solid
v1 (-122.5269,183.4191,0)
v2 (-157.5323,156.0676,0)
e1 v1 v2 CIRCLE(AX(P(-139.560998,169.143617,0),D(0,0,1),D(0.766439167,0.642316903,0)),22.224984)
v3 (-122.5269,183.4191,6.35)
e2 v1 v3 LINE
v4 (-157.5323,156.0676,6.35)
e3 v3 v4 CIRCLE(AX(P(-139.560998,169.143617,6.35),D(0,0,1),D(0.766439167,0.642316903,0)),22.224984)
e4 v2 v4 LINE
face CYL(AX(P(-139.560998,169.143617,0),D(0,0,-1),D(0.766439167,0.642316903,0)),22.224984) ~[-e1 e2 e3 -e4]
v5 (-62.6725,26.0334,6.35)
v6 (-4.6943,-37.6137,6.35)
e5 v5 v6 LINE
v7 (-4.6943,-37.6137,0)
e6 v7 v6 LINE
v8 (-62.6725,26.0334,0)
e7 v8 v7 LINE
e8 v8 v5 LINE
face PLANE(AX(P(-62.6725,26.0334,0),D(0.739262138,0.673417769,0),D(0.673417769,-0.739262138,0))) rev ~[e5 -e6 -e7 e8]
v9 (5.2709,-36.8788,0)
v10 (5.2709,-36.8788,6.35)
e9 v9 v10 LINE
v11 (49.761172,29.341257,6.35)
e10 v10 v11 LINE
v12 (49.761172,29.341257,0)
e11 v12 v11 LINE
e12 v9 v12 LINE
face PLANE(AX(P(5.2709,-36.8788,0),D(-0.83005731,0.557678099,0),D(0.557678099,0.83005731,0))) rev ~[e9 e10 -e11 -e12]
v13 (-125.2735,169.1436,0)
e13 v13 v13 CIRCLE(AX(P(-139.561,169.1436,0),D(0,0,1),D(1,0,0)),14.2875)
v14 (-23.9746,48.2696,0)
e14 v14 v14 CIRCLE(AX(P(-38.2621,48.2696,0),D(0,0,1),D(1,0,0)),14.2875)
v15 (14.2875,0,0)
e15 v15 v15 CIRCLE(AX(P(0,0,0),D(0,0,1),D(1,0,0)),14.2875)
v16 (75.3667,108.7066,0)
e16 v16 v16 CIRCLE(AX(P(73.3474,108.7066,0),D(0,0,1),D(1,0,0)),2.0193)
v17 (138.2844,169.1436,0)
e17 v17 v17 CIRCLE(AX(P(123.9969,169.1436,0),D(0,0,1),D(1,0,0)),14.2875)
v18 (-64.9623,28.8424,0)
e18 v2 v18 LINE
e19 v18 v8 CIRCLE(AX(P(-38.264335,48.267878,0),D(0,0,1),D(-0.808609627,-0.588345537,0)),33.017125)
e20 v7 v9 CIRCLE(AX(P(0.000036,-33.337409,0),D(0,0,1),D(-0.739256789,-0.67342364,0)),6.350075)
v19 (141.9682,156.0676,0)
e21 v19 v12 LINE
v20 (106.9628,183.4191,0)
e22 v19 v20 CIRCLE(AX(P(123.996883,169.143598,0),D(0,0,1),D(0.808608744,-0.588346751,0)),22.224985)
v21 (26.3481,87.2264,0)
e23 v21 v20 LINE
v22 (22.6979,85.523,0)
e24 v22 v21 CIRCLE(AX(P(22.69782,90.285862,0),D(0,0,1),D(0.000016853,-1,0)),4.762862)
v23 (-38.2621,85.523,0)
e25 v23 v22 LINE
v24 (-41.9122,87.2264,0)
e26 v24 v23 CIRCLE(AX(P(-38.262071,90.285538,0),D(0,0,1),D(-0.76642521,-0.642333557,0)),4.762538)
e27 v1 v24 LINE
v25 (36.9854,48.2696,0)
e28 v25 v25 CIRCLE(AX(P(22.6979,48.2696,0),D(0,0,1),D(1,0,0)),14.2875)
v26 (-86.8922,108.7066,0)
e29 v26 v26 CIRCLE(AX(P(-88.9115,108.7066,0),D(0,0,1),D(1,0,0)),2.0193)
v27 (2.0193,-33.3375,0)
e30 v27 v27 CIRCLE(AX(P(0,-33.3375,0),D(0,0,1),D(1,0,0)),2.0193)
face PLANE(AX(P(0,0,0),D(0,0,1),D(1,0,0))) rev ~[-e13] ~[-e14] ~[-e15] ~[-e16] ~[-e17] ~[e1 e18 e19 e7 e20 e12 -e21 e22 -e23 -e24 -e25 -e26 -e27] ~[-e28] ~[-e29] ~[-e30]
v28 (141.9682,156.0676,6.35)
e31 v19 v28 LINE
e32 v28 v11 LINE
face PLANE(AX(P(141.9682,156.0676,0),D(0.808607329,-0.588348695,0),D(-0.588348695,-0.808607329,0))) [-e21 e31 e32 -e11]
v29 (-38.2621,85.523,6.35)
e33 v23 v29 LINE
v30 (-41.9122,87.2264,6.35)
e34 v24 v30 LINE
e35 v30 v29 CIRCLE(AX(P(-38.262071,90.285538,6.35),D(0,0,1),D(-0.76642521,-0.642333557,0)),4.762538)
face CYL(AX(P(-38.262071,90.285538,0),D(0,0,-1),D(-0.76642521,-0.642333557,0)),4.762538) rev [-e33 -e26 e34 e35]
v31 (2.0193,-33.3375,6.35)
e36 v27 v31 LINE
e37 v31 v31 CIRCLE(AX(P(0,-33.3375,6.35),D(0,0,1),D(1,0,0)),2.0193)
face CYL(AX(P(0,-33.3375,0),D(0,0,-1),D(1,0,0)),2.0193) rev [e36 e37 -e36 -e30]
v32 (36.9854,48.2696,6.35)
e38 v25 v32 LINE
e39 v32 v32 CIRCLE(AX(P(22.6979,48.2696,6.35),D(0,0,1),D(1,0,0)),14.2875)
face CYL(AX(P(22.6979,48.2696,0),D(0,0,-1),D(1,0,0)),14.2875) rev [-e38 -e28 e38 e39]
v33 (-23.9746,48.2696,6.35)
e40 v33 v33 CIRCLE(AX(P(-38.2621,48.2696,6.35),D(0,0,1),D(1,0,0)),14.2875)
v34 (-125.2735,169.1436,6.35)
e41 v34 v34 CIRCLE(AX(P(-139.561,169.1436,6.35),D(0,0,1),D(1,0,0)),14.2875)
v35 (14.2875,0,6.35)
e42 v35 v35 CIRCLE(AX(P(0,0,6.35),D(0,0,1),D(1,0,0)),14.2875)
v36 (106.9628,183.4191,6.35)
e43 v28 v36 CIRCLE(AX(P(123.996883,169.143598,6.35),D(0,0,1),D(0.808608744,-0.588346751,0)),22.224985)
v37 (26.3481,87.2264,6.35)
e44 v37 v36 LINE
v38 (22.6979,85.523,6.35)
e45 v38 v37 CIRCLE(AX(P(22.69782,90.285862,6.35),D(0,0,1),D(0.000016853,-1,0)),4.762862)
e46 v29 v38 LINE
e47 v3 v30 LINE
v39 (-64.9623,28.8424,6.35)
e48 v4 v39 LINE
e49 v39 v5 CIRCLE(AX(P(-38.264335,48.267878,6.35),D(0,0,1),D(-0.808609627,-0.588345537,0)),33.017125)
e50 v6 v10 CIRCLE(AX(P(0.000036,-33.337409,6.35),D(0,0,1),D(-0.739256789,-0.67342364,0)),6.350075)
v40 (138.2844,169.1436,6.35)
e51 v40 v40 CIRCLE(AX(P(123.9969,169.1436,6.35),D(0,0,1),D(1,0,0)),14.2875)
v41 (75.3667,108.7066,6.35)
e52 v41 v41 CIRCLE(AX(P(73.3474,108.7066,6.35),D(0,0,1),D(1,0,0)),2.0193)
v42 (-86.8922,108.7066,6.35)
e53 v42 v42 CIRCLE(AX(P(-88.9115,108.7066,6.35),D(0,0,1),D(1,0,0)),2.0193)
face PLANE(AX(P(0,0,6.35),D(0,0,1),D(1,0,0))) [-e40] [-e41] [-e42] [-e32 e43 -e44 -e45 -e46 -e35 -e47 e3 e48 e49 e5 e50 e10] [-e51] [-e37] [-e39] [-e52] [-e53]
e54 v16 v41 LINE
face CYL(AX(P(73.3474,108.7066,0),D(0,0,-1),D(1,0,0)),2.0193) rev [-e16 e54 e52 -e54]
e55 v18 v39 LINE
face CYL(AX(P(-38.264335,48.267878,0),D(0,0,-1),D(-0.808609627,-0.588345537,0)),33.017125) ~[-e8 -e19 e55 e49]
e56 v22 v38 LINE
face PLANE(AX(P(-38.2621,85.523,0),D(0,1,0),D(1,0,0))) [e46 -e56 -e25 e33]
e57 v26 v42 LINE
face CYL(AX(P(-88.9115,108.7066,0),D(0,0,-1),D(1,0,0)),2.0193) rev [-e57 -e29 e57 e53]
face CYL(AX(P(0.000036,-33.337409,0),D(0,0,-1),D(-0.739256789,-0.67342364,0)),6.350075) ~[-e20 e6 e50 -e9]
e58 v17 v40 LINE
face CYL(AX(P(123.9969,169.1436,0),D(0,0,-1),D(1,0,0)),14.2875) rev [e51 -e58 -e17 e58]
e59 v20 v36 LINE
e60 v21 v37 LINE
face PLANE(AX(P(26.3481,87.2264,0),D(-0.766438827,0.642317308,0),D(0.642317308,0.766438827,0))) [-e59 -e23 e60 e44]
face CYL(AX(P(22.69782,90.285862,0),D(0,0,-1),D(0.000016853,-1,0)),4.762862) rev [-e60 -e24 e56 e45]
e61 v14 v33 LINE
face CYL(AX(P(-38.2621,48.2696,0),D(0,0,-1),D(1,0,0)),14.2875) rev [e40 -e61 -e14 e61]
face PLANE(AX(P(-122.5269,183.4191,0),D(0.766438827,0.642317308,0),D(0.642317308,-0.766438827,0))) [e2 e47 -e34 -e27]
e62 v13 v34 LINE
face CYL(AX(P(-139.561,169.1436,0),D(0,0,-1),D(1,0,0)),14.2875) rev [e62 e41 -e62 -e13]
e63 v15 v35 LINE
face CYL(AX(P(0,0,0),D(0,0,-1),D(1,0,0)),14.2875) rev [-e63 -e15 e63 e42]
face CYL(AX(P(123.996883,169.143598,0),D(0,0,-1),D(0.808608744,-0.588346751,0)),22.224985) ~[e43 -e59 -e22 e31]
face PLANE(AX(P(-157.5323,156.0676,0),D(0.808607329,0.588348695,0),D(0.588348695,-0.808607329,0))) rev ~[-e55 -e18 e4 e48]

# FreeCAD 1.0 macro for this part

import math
import FreeCAD as App
import Part
import Sketcher

V = App.Vector
Q = App.Units.Quantity

doc = App.newDocument("Part")
params = doc.addObject("Spreadsheet::Sheet", "Params")
for row, (alias, value) in enumerate([
    ("sketch1_radius", "0.25 in"),
    ("sketch1_diameter", "1.125 in"),
    ("sketch1_diameter2", "0.159 in"),
    ("sketch1_width", "2.4 in"),
    ("sketch1_radius2", "0.875 in"),
    ("pad1_length", "0.25 in"),
], start=1):
    params.set(f"A{row}", alias)
    params.set(f"B{row}", "=" + value)
    params.setAlias(f"B{row}", alias)

body = doc.addObject("PartDesign::Body", "Body")

sketch1 = body.newObject("Sketcher::SketchObject", "Sketch")
sketch1.AttachmentSupport = (doc.getObject("XY_Plane"), [""])
sketch1.MapMode = "FlatFace"
sketch1.addGeometry(Part.LineSegment(V(-41.9, 87.2, 0), V(-122.5, 183.4, 0)), False)
sketch1.addGeometry(Part.ArcOfCircle(Part.Circle(V(-139.6, 169.1, 0), V(0, 0, 1), 22.2), math.radians(40), math.radians(216)), False)
sketch1.addGeometry(Part.LineSegment(V(-157.5, 156.1, 0), V(-65, 28.8, 0)), False)
sketch1.addGeometry(Part.ArcOfCircle(Part.Circle(V(-38.3, 48.3, 0), V(0, 0, 1), 33), math.radians(-143.96), math.radians(-137.67)), False)
sketch1.addGeometry(Part.LineSegment(V(-62.7, 26, 0), V(-4.7, -37.6, 0)), False)
sketch1.addGeometry(Part.ArcOfCircle(Part.Circle(V(0, -33.3, 0), V(0, 0, 1), 6.3), math.radians(-138), math.radians(-34)), False)
sketch1.addGeometry(Part.LineSegment(V(5.3, -36.9, 0), V(49.8, 29.3, 0)), False)
sketch1.addGeometry(Part.LineSegment(V(49.8, 29.3, 0), V(142, 156.1, 0)), False)
sketch1.addGeometry(Part.ArcOfCircle(Part.Circle(V(124, 169.1, 0), V(0, 0, 1), 22.2), math.radians(-36), math.radians(140)), False)
sketch1.addGeometry(Part.LineSegment(V(107, 183.4, 0), V(26.3, 87.2, 0)), False)
sketch1.addGeometry(Part.ArcOfCircle(Part.Circle(V(22.7, 90.3, 0), V(0, 0, 1), 4.8), math.radians(-90), math.radians(-40)), False)
sketch1.addGeometry(Part.LineSegment(V(22.7, 85.5, 0), V(-38.3, 85.5, 0)), False)
sketch1.addGeometry(Part.ArcOfCircle(Part.Circle(V(-38.3, 90.3, 0), V(0, 0, 1), 4.8), math.radians(-140), math.radians(-90)), False)
sketch1.addGeometry(Part.Circle(V(-38.3, 48.3, 0), V(0, 0, 1), 14.3), False)
sketch1.addGeometry(Part.Circle(V(0, -33.3, 0), V(0, 0, 1), 2), False)
sketch1.addGeometry(Part.Circle(V(0, 0, 0), V(0, 0, 1), 14.3), False)
sketch1.addGeometry(Part.Circle(V(-139.6, 169.1, 0), V(0, 0, 1), 14.3), False)
sketch1.addGeometry(Part.Circle(V(73.3, 108.7, 0), V(0, 0, 1), 2), False)
sketch1.addGeometry(Part.Circle(V(124, 169.1, 0), V(0, 0, 1), 14.3), False)
sketch1.addGeometry(Part.Circle(V(22.7, 48.3, 0), V(0, 0, 1), 14.3), False)
sketch1.addGeometry(Part.Circle(V(-88.9, 108.7, 0), V(0, 0, 1), 2), False)
sketch1.addConstraint(Sketcher.Constraint("Tangent", 0, 2, 1, 1))
sketch1.addConstraint(Sketcher.Constraint("Tangent", 1, 2, 2, 1))
sketch1.addConstraint(Sketcher.Constraint("Tangent", 2, 2, 3, 1))
sketch1.addConstraint(Sketcher.Constraint("Tangent", 3, 2, 4, 1))
sketch1.addConstraint(Sketcher.Constraint("Tangent", 4, 2, 5, 1))
sketch1.addConstraint(Sketcher.Constraint("Tangent", 5, 2, 6, 1))
sketch1.addConstraint(Sketcher.Constraint("Coincident", 6, 2, 7, 1))
sketch1.addConstraint(Sketcher.Constraint("Tangent", 7, 2, 8, 1))
sketch1.addConstraint(Sketcher.Constraint("Tangent", 8, 2, 9, 1))
sketch1.addConstraint(Sketcher.Constraint("Tangent", 9, 2, 10, 2))
sketch1.addConstraint(Sketcher.Constraint("Tangent", 10, 1, 11, 1))
sketch1.addConstraint(Sketcher.Constraint("Tangent", 11, 2, 12, 2))
sketch1.addConstraint(Sketcher.Constraint("Tangent", 12, 1, 0, 1))
sketch1.addConstraint(Sketcher.Constraint("Horizontal", 11))
sketch1.addConstraint(Sketcher.Constraint("Coincident", 15, 3, -1, 1))
sketch1.addConstraint(Sketcher.Constraint("Coincident", 14, 3, 5, 3))
sketch1.addConstraint(Sketcher.Constraint("Coincident", 16, 3, 1, 3))
sketch1.addConstraint(Sketcher.Constraint("Coincident", 18, 3, 8, 3))
sketch1.addConstraint(Sketcher.Constraint("Equal", 1, 8))
sketch1.addConstraint(Sketcher.Constraint("Equal", 10, 12))
sketch1.addConstraint(Sketcher.Constraint("Equal", 13, 15))
sketch1.addConstraint(Sketcher.Constraint("Equal", 15, 16))
sketch1.addConstraint(Sketcher.Constraint("Equal", 14, 17))
sketch1.addConstraint(Sketcher.Constraint("Equal", 16, 18))
sketch1.addConstraint(Sketcher.Constraint("Equal", 18, 19))
sketch1.addConstraint(Sketcher.Constraint("Equal", 17, 20))
sketch1.addConstraint(Sketcher.Constraint("PointOnObject", 5, 3, -2))
sketch1.addConstraint(Sketcher.Constraint("Horizontal", 1, 3, 8, 3))
sketch1.addConstraint(Sketcher.Constraint("Horizontal", 13, 3, 19, 3))
sketch1.addConstraint(Sketcher.Constraint("Horizontal", 17, 3, 20, 3))
sketch1.addConstraint(Sketcher.Constraint("Horizontal", 1, 2, 7, 2))
sketch1.addConstraint(Sketcher.Constraint("Horizontal", 0, 2, 8, 2))
sketch1.addConstraint(Sketcher.Constraint("Vertical", 12, 3, 13, 3))
sketch1.addConstraint(Sketcher.Constraint("Vertical", 10, 3, 19, 3))
sketch1.addConstraint(Sketcher.Constraint("Radius", 5, Q("0.25 in")))
sketch1.addConstraint(Sketcher.Constraint("Diameter", 13, Q("1.125 in")))
sketch1.addConstraint(Sketcher.Constraint("Diameter", 14, Q("0.159 in")))
sketch1.addConstraint(Sketcher.Constraint("DistanceX", 11, 2, 11, 1, Q("2.4 in")))
sketch1.addConstraint(Sketcher.Constraint("Radius", 1, Q("0.875 in")))
sketch1.addConstraint(Sketcher.Constraint("Radius", 10, Q("0.1875 in")))
sketch1.addConstraint(Sketcher.Constraint("Angle", 2, Q("-53.96 deg")))
sketch1.addConstraint(Sketcher.Constraint("Radius", 3, 33.0171))
sketch1.addConstraint(Sketcher.Constraint("DistanceY", 5, 3, -1, 1, Q("1.3125 in")))
sketch1.addConstraint(Sketcher.Constraint("DistanceY", -1, 1, 1, 3, Q("6.6592 in")))
sketch1.addConstraint(Sketcher.Constraint("DistanceY", -1, 1, 3, 3, Q("1.9003 in")))
sketch1.addConstraint(Sketcher.Constraint("DistanceX", -1, 1, 17, 3, Q("2.8877 in")))
sketch1.addConstraint(Sketcher.Constraint("DistanceX", 0, 2, -1, 1, Q("4.8239 in")))
sketch1.addConstraint(Sketcher.Constraint("DistanceX", -1, 1, 6, 2, Q("1.9591 in")))
sketch1.addConstraint(Sketcher.Constraint("DistanceX", -1, 1, 7, 2, Q("5.5893 in")))
sketch1.addConstraint(Sketcher.Constraint("DistanceY", -1, 1, 9, 2, Q("3.4341 in")))
sketch1.addConstraint(Sketcher.Constraint("DistanceY", 17, 3, 8, 3, Q("2.3794 in")))
sketch1.addConstraint(Sketcher.Constraint("DistanceY", 13, 3, 17, 3, Q("2.3794 in")))
sketch1.addConstraint(Sketcher.Constraint("DistanceX", 1, 2, 20, 3, Q("2.7016 in")))
sketch1.setExpression("Constraints[34]", "Params.sketch1_radius")
sketch1.setExpression("Constraints[35]", "Params.sketch1_diameter")
sketch1.setExpression("Constraints[36]", "Params.sketch1_diameter2")
sketch1.setExpression("Constraints[37]", "Params.sketch1_width")
sketch1.setExpression("Constraints[38]", "Params.sketch1_radius2")
pad1 = body.newObject("PartDesign::Pad", "Pad")
pad1.Profile = sketch1
pad1.setExpression("Length", "Params.pad1_length")

doc.recompute()
